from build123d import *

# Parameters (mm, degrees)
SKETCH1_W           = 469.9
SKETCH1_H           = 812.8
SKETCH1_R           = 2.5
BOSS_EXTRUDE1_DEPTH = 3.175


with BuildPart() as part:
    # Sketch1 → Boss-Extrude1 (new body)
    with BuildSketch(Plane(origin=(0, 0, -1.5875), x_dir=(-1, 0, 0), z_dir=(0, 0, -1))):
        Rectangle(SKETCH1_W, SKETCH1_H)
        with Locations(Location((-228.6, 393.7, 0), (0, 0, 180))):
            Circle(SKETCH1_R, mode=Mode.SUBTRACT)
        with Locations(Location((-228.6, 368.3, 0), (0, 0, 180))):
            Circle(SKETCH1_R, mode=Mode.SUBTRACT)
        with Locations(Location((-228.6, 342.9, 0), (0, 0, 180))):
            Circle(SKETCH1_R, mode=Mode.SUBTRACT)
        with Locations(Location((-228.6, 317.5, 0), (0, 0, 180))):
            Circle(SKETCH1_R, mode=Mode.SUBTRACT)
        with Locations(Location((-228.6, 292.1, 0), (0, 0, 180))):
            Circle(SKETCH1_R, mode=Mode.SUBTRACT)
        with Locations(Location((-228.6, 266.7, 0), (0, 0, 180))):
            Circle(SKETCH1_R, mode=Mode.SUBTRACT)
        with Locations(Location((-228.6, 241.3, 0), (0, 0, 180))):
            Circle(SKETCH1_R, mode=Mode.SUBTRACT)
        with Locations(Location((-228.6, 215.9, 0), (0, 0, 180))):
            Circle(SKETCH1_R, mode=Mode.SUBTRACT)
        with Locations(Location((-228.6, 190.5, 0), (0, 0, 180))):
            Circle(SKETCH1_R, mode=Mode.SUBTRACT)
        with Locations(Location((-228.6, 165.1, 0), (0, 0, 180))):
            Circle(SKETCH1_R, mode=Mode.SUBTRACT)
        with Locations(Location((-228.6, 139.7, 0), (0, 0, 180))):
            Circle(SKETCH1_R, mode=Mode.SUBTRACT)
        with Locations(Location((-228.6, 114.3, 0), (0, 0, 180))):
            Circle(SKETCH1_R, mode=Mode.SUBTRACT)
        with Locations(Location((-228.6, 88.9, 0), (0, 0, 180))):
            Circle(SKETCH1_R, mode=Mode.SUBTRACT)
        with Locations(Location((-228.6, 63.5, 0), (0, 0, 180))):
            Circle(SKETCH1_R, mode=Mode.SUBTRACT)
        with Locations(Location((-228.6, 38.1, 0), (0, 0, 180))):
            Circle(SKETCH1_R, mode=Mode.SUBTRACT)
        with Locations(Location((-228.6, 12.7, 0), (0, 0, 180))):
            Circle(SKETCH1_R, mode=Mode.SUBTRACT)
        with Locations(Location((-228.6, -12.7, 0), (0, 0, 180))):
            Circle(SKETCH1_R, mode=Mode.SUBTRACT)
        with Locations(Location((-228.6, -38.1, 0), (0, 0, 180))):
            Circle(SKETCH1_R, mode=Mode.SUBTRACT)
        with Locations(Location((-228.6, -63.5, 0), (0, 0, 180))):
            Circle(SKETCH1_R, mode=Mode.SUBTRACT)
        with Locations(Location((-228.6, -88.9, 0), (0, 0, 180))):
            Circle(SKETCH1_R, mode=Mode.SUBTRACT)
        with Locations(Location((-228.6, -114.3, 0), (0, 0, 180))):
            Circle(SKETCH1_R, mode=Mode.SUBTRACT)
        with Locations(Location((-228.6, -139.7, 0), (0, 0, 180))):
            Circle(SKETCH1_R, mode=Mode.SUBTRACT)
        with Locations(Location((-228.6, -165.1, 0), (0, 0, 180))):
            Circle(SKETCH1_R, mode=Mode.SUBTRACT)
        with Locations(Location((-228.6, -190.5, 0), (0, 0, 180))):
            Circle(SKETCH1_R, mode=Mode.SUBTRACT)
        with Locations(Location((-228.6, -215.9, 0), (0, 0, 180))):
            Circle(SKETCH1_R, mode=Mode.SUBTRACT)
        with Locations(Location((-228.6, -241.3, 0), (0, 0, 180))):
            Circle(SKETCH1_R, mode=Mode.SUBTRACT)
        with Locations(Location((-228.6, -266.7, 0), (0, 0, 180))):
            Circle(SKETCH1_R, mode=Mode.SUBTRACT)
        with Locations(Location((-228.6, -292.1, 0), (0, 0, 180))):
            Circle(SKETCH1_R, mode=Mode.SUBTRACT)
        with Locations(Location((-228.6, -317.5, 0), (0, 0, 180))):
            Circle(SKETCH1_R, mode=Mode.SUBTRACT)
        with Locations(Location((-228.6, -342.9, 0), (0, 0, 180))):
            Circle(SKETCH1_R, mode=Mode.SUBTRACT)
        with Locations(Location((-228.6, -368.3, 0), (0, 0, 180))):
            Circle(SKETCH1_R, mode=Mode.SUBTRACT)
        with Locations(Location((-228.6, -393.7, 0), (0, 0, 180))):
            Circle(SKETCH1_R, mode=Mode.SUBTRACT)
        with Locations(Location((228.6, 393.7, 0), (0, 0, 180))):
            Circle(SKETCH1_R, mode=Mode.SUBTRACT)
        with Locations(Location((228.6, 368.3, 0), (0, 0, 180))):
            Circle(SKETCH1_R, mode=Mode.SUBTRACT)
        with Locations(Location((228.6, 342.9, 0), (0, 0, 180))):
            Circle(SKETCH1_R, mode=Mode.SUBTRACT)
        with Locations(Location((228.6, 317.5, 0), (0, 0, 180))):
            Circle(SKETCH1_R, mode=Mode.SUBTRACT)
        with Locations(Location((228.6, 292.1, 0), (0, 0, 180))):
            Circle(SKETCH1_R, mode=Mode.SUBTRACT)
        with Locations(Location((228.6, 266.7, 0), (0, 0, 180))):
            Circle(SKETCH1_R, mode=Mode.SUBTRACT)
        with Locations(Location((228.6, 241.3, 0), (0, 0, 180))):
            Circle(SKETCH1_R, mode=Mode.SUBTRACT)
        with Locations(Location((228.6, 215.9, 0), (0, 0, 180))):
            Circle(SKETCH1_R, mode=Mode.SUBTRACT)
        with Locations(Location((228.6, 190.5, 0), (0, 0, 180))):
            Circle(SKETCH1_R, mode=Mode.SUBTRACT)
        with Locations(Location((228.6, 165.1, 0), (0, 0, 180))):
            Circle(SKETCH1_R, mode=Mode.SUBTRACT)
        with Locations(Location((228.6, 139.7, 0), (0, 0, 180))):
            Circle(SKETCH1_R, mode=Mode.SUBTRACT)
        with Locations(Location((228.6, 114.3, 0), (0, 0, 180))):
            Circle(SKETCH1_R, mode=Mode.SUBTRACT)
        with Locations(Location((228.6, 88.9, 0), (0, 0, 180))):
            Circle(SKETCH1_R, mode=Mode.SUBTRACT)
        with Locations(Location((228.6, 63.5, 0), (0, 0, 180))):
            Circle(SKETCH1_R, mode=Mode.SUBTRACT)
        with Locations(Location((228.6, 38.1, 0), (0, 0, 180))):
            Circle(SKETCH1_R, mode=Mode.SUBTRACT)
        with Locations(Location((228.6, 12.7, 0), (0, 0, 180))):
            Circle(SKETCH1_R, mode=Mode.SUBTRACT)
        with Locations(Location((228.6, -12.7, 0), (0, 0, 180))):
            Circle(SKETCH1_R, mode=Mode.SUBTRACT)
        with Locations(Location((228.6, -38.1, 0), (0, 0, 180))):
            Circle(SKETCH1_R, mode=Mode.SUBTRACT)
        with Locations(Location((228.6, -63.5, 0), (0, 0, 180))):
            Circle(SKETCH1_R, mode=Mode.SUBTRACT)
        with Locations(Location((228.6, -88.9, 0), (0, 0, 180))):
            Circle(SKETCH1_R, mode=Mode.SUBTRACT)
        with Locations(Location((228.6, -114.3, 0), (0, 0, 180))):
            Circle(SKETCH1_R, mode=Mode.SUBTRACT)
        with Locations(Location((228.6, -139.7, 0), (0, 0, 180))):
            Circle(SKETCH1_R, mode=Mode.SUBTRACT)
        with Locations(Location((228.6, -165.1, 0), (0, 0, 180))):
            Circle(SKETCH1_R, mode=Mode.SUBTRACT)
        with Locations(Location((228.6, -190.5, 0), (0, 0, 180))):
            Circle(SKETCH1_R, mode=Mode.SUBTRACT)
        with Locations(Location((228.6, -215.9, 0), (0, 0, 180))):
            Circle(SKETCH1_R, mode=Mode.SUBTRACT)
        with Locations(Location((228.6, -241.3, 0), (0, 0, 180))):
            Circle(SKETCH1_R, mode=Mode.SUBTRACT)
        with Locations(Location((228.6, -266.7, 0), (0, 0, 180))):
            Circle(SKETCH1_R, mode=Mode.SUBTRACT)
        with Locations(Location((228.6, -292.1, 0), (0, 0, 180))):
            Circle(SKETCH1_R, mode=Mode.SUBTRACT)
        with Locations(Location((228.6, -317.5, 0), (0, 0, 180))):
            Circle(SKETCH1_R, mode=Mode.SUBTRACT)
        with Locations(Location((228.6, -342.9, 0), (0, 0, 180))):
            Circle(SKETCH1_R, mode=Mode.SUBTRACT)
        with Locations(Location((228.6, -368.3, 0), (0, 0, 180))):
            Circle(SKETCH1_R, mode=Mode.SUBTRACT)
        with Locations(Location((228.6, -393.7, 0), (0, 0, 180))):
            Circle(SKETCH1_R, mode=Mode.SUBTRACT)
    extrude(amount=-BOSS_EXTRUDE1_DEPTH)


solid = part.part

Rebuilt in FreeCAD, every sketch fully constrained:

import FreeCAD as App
import Part
import Sketcher
Q = App.Units.Quantity


def add_polygon(sketch, points):
    """Adds a closed chain of lines whose ends are joined by coincident constraints."""
    first, n = sketch.GeometryCount, len(points)
    for a, b in zip(points, points[1:] + points[:1]):
        sketch.addGeometry(Part.LineSegment(App.Vector(*a, 0), App.Vector(*b, 0)), False)
    for i in range(n):
        sketch.addConstraint(Sketcher.Constraint("Coincident", first + i, 2, first + (i + 1) % n, 1))

doc = App.newDocument("Part")
body = doc.addObject("PartDesign::Body", "Body")

sketch1 = body.newObject("Sketcher::SketchObject", "Sketch")
sketch1.AttachmentSupport = (doc.getObject("XY_Plane"), [""])
sketch1.MapMode = "FlatFace"
sketch1.AttachmentOffset = App.Placement(App.Vector(0, 0, -0.0625 * 25.4), App.Rotation())
add_polygon(sketch1, [(234.9, 406.4), (234.9, -406.4), (-234.9, -406.4), (-234.9, 406.4)])
sketch1.addGeometry(Part.Circle(App.Vector(228.6, -393.7, 0), App.Vector(0, 0, 1), 2.5), False)
sketch1.addGeometry(Part.Circle(App.Vector(228.6, -368.3, 0), App.Vector(0, 0, 1), 2.5), False)
sketch1.addGeometry(Part.Circle(App.Vector(228.6, -342.9, 0), App.Vector(0, 0, 1), 2.5), False)
sketch1.addGeometry(Part.Circle(App.Vector(228.6, -317.5, 0), App.Vector(0, 0, 1), 2.5), False)
sketch1.addGeometry(Part.Circle(App.Vector(228.6, -292.1, 0), App.Vector(0, 0, 1), 2.5), False)
sketch1.addGeometry(Part.Circle(App.Vector(228.6, -266.7, 0), App.Vector(0, 0, 1), 2.5), False)
sketch1.addGeometry(Part.Circle(App.Vector(228.6, -241.3, 0), App.Vector(0, 0, 1), 2.5), False)
sketch1.addGeometry(Part.Circle(App.Vector(228.6, -215.9, 0), App.Vector(0, 0, 1), 2.5), False)
sketch1.addGeometry(Part.Circle(App.Vector(228.6, -190.5, 0), App.Vector(0, 0, 1), 2.5), False)
sketch1.addGeometry(Part.Circle(App.Vector(228.6, -165.1, 0), App.Vector(0, 0, 1), 2.5), False)
sketch1.addGeometry(Part.Circle(App.Vector(228.6, -139.7, 0), App.Vector(0, 0, 1), 2.5), False)
sketch1.addGeometry(Part.Circle(App.Vector(228.6, -114.3, 0), App.Vector(0, 0, 1), 2.5), False)
sketch1.addGeometry(Part.Circle(App.Vector(228.6, -88.9, 0), App.Vector(0, 0, 1), 2.5), False)
sketch1.addGeometry(Part.Circle(App.Vector(228.6, -63.5, 0), App.Vector(0, 0, 1), 2.5), False)
sketch1.addGeometry(Part.Circle(App.Vector(228.6, -38.1, 0), App.Vector(0, 0, 1), 2.5), False)
sketch1.addGeometry(Part.Circle(App.Vector(228.6, -12.7, 0), App.Vector(0, 0, 1), 2.5), False)
sketch1.addGeometry(Part.Circle(App.Vector(-228.6, -393.7, 0), App.Vector(0, 0, 1), 2.5), False)
sketch1.addGeometry(Part.Circle(App.Vector(-228.6, -368.3, 0), App.Vector(0, 0, 1), 2.5), False)
sketch1.addGeometry(Part.Circle(App.Vector(-228.6, -342.9, 0), App.Vector(0, 0, 1), 2.5), False)
sketch1.addGeometry(Part.Circle(App.Vector(-228.6, -317.5, 0), App.Vector(0, 0, 1), 2.5), False)
sketch1.addGeometry(Part.Circle(App.Vector(-228.6, -292.1, 0), App.Vector(0, 0, 1), 2.5), False)
sketch1.addGeometry(Part.Circle(App.Vector(-228.6, -266.7, 0), App.Vector(0, 0, 1), 2.5), False)
sketch1.addGeometry(Part.Circle(App.Vector(-228.6, -241.3, 0), App.Vector(0, 0, 1), 2.5), False)
sketch1.addGeometry(Part.Circle(App.Vector(-228.6, -215.9, 0), App.Vector(0, 0, 1), 2.5), False)
sketch1.addGeometry(Part.Circle(App.Vector(-228.6, -190.5, 0), App.Vector(0, 0, 1), 2.5), False)
sketch1.addGeometry(Part.Circle(App.Vector(-228.6, -165.1, 0), App.Vector(0, 0, 1), 2.5), False)
sketch1.addGeometry(Part.Circle(App.Vector(-228.6, -139.7, 0), App.Vector(0, 0, 1), 2.5), False)
sketch1.addGeometry(Part.Circle(App.Vector(-228.6, -114.3, 0), App.Vector(0, 0, 1), 2.5), False)
sketch1.addGeometry(Part.Circle(App.Vector(-228.6, -88.9, 0), App.Vector(0, 0, 1), 2.5), False)
sketch1.addGeometry(Part.Circle(App.Vector(-228.6, -63.5, 0), App.Vector(0, 0, 1), 2.5), False)
sketch1.addGeometry(Part.Circle(App.Vector(-228.6, -38.1, 0), App.Vector(0, 0, 1), 2.5), False)
sketch1.addGeometry(Part.Circle(App.Vector(-228.6, -12.7, 0), App.Vector(0, 0, 1), 2.5), False)
sketch1.addGeometry(Part.Circle(App.Vector(228.6, 12.7, 0), App.Vector(0, 0, 1), 2.5), False)
sketch1.addGeometry(Part.Circle(App.Vector(228.6, 38.1, 0), App.Vector(0, 0, 1), 2.5), False)
sketch1.addGeometry(Part.Circle(App.Vector(228.6, 63.5, 0), App.Vector(0, 0, 1), 2.5), False)
sketch1.addGeometry(Part.Circle(App.Vector(228.6, 88.9, 0), App.Vector(0, 0, 1), 2.5), False)
sketch1.addGeometry(Part.Circle(App.Vector(228.6, 114.3, 0), App.Vector(0, 0, 1), 2.5), False)
sketch1.addGeometry(Part.Circle(App.Vector(228.6, 139.7, 0), App.Vector(0, 0, 1), 2.5), False)
sketch1.addGeometry(Part.Circle(App.Vector(228.6, 165.1, 0), App.Vector(0, 0, 1), 2.5), False)
sketch1.addGeometry(Part.Circle(App.Vector(228.6, 190.5, 0), App.Vector(0, 0, 1), 2.5), False)
sketch1.addGeometry(Part.Circle(App.Vector(228.6, 215.9, 0), App.Vector(0, 0, 1), 2.5), False)
sketch1.addGeometry(Part.Circle(App.Vector(228.6, 241.3, 0), App.Vector(0, 0, 1), 2.5), False)
sketch1.addGeometry(Part.Circle(App.Vector(228.6, 266.7, 0), App.Vector(0, 0, 1), 2.5), False)
sketch1.addGeometry(Part.Circle(App.Vector(228.6, 292.1, 0), App.Vector(0, 0, 1), 2.5), False)
sketch1.addGeometry(Part.Circle(App.Vector(228.6, 317.5, 0), App.Vector(0, 0, 1), 2.5), False)
sketch1.addGeometry(Part.Circle(App.Vector(228.6, 342.9, 0), App.Vector(0, 0, 1), 2.5), False)
sketch1.addGeometry(Part.Circle(App.Vector(228.6, 368.3, 0), App.Vector(0, 0, 1), 2.5), False)
sketch1.addGeometry(Part.Circle(App.Vector(228.6, 393.7, 0), App.Vector(0, 0, 1), 2.5), False)
sketch1.addGeometry(Part.Circle(App.Vector(-228.6, 12.7, 0), App.Vector(0, 0, 1), 2.5), False)
sketch1.addGeometry(Part.Circle(App.Vector(-228.6, 38.1, 0), App.Vector(0, 0, 1), 2.5), False)
sketch1.addGeometry(Part.Circle(App.Vector(-228.6, 63.5, 0), App.Vector(0, 0, 1), 2.5), False)
sketch1.addGeometry(Part.Circle(App.Vector(-228.6, 88.9, 0), App.Vector(0, 0, 1), 2.5), False)
sketch1.addGeometry(Part.Circle(App.Vector(-228.6, 114.3, 0), App.Vector(0, 0, 1), 2.5), False)
sketch1.addGeometry(Part.Circle(App.Vector(-228.6, 139.7, 0), App.Vector(0, 0, 1), 2.5), False)
sketch1.addGeometry(Part.Circle(App.Vector(-228.6, 165.1, 0), App.Vector(0, 0, 1), 2.5), False)
sketch1.addGeometry(Part.Circle(App.Vector(-228.6, 190.5, 0), App.Vector(0, 0, 1), 2.5), False)
sketch1.addGeometry(Part.Circle(App.Vector(-228.6, 215.9, 0), App.Vector(0, 0, 1), 2.5), False)
sketch1.addGeometry(Part.Circle(App.Vector(-228.6, 241.3, 0), App.Vector(0, 0, 1), 2.5), False)
sketch1.addGeometry(Part.Circle(App.Vector(-228.6, 266.7, 0), App.Vector(0, 0, 1), 2.5), False)
sketch1.addGeometry(Part.Circle(App.Vector(-228.6, 292.1, 0), App.Vector(0, 0, 1), 2.5), False)
sketch1.addGeometry(Part.Circle(App.Vector(-228.6, 317.5, 0), App.Vector(0, 0, 1), 2.5), False)
sketch1.addGeometry(Part.Circle(App.Vector(-228.6, 342.9, 0), App.Vector(0, 0, 1), 2.5), False)
sketch1.addGeometry(Part.Circle(App.Vector(-228.6, 368.3, 0), App.Vector(0, 0, 1), 2.5), False)
sketch1.addGeometry(Part.Circle(App.Vector(-228.6, 393.7, 0), App.Vector(0, 0, 1), 2.5), False)
sketch1.addConstraint([
    Sketcher.Constraint("Vertical", 0),
    Sketcher.Constraint("Horizontal", 1),
    Sketcher.Constraint("Vertical", 2),
    Sketcher.Constraint("Horizontal", 3),
    Sketcher.Constraint("Equal", 4, 5),
    Sketcher.Constraint("Equal", 5, 6),
    Sketcher.Constraint("Equal", 6, 7),
    Sketcher.Constraint("Equal", 7, 8),
    Sketcher.Constraint("Equal", 8, 9),
    Sketcher.Constraint("Equal", 9, 10),
    Sketcher.Constraint("Equal", 10, 11),
    Sketcher.Constraint("Equal", 11, 12),
    Sketcher.Constraint("Equal", 12, 13),
    Sketcher.Constraint("Equal", 13, 14),
    Sketcher.Constraint("Equal", 14, 15),
    Sketcher.Constraint("Equal", 15, 16),
    Sketcher.Constraint("Equal", 16, 17),
    Sketcher.Constraint("Equal", 17, 18),
    Sketcher.Constraint("Equal", 18, 19),
    Sketcher.Constraint("Equal", 19, 20),
    Sketcher.Constraint("Equal", 20, 21),
    Sketcher.Constraint("Equal", 21, 22),
    Sketcher.Constraint("Equal", 22, 23),
    Sketcher.Constraint("Equal", 23, 24),
    Sketcher.Constraint("Equal", 24, 25),
    Sketcher.Constraint("Equal", 25, 26),
    Sketcher.Constraint("Equal", 26, 27),
    Sketcher.Constraint("Equal", 27, 28),
    Sketcher.Constraint("Equal", 28, 29),
    Sketcher.Constraint("Equal", 29, 30),
    Sketcher.Constraint("Equal", 30, 31),
    Sketcher.Constraint("Equal", 31, 32),
    Sketcher.Constraint("Equal", 32, 33),
    Sketcher.Constraint("Equal", 33, 34),
    Sketcher.Constraint("Equal", 34, 35),
    Sketcher.Constraint("Equal", 35, 36),
    Sketcher.Constraint("Equal", 36, 37),
    Sketcher.Constraint("Equal", 37, 38),
    Sketcher.Constraint("Equal", 38, 39),
    Sketcher.Constraint("Equal", 39, 40),
    Sketcher.Constraint("Equal", 40, 41),
    Sketcher.Constraint("Equal", 41, 42),
    Sketcher.Constraint("Equal", 42, 43),
    Sketcher.Constraint("Equal", 43, 44),
    Sketcher.Constraint("Equal", 44, 45),
    Sketcher.Constraint("Equal", 45, 46),
    Sketcher.Constraint("Equal", 46, 47),
    Sketcher.Constraint("Equal", 47, 48),
    Sketcher.Constraint("Equal", 48, 49),
    Sketcher.Constraint("Equal", 49, 50),
    Sketcher.Constraint("Equal", 50, 51),
    Sketcher.Constraint("Equal", 51, 52),
    Sketcher.Constraint("Equal", 52, 53),
    Sketcher.Constraint("Equal", 53, 54),
    Sketcher.Constraint("Equal", 54, 55),
    Sketcher.Constraint("Equal", 55, 56),
    Sketcher.Constraint("Equal", 56, 57),
    Sketcher.Constraint("Equal", 57, 58),
    Sketcher.Constraint("Equal", 58, 59),
    Sketcher.Constraint("Equal", 59, 60),
    Sketcher.Constraint("Equal", 60, 61),
    Sketcher.Constraint("Equal", 61, 62),
    Sketcher.Constraint("Equal", 62, 63),
    Sketcher.Constraint("Equal", 63, 64),
    Sketcher.Constraint("Equal", 64, 65),
    Sketcher.Constraint("Equal", 65, 66),
    Sketcher.Constraint("Equal", 66, 67),
    Sketcher.Constraint("Symmetric", 35, 3, 36, 3, -1, 1),
    Sketcher.Constraint("Symmetric", 34, 3, 37, 3, -1, 1),
    Sketcher.Constraint("Symmetric", 33, 3, 38, 3, -1, 1),
    Sketcher.Constraint("Symmetric", 32, 3, 39, 3, -1, 1),
    Sketcher.Constraint("Symmetric", 31, 3, 40, 3, -1, 1),
    Sketcher.Constraint("Symmetric", 30, 3, 41, 3, -1, 1),
    Sketcher.Constraint("Symmetric", 29, 3, 42, 3, -1, 1),
    Sketcher.Constraint("Symmetric", 28, 3, 43, 3, -1, 1),
    Sketcher.Constraint("Symmetric", 27, 3, 44, 3, -1, 1),
    Sketcher.Constraint("Symmetric", 26, 3, 45, 3, -1, 1),
    Sketcher.Constraint("Symmetric", 25, 3, 46, 3, -1, 1),
    Sketcher.Constraint("Symmetric", 24, 3, 47, 3, -1, 1),
    Sketcher.Constraint("Symmetric", 23, 3, 48, 3, -1, 1),
    Sketcher.Constraint("Symmetric", 22, 3, 49, 3, -1, 1),
    Sketcher.Constraint("Symmetric", 21, 3, 50, 3, -1, 1),
    Sketcher.Constraint("Symmetric", 20, 3, 51, 3, -1, 1),
    Sketcher.Constraint("Symmetric", 19, 3, 52, 3, -1, 1),
    Sketcher.Constraint("Symmetric", 18, 3, 53, 3, -1, 1),
    Sketcher.Constraint("Symmetric", 17, 3, 54, 3, -1, 1),
    Sketcher.Constraint("Symmetric", 16, 3, 55, 3, -1, 1),
    Sketcher.Constraint("Symmetric", 15, 3, 56, 3, -1, 1),
    Sketcher.Constraint("Symmetric", 14, 3, 57, 3, -1, 1),
    Sketcher.Constraint("Symmetric", 13, 3, 58, 3, -1, 1),
    Sketcher.Constraint("Symmetric", 12, 3, 59, 3, -1, 1),
    Sketcher.Constraint("Symmetric", 11, 3, 60, 3, -1, 1),
    Sketcher.Constraint("Symmetric", 10, 3, 61, 3, -1, 1),
    Sketcher.Constraint("Symmetric", 9, 3, 62, 3, -1, 1),
    Sketcher.Constraint("Symmetric", 8, 3, 63, 3, -1, 1),
    Sketcher.Constraint("Symmetric", 7, 3, 64, 3, -1, 1),
    Sketcher.Constraint("Symmetric", 6, 3, 65, 3, -1, 1),
    Sketcher.Constraint("Symmetric", 5, 3, 66, 3, -1, 1),
    Sketcher.Constraint("Symmetric", 4, 3, 67, 3, -1, 1),
    Sketcher.Constraint("Symmetric", 0, 2, 2, 2, -1, 1),
    Sketcher.Constraint("Symmetric", 4, 3, 20, 3, -2),
    Sketcher.Constraint("Symmetric", 5, 3, 21, 3, -2),
    Sketcher.Constraint("Symmetric", 6, 3, 22, 3, -2),
    Sketcher.Constraint("Symmetric", 7, 3, 23, 3, -2),
    Sketcher.Constraint("Symmetric", 8, 3, 24, 3, -2),
    Sketcher.Constraint("Symmetric", 9, 3, 25, 3, -2),
    Sketcher.Constraint("Symmetric", 10, 3, 26, 3, -2),
    Sketcher.Constraint("Symmetric", 11, 3, 27, 3, -2),
    Sketcher.Constraint("Symmetric", 12, 3, 28, 3, -2),
    Sketcher.Constraint("Symmetric", 13, 3, 29, 3, -2),
    Sketcher.Constraint("Symmetric", 14, 3, 30, 3, -2),
    Sketcher.Constraint("Symmetric", 15, 3, 31, 3, -2),
    Sketcher.Constraint("Symmetric", 16, 3, 32, 3, -2),
    Sketcher.Constraint("Symmetric", 17, 3, 33, 3, -2),
    Sketcher.Constraint("Symmetric", 18, 3, 34, 3, -2),
    Sketcher.Constraint("Symmetric", 19, 3, 35, 3, -2),
    Sketcher.Constraint("Vertical", 4, 3, 5, 3),
    Sketcher.Constraint("Vertical", 5, 3, 6, 3),
    Sketcher.Constraint("Vertical", 6, 3, 7, 3),
    Sketcher.Constraint("Vertical", 7, 3, 8, 3),
    Sketcher.Constraint("Vertical", 8, 3, 9, 3),
    Sketcher.Constraint("Vertical", 9, 3, 10, 3),
    Sketcher.Constraint("Vertical", 10, 3, 11, 3),
    Sketcher.Constraint("Vertical", 11, 3, 12, 3),
    Sketcher.Constraint("Vertical", 12, 3, 13, 3),
    Sketcher.Constraint("Vertical", 13, 3, 14, 3),
    Sketcher.Constraint("Vertical", 14, 3, 15, 3),
    Sketcher.Constraint("Vertical", 15, 3, 16, 3),
    Sketcher.Constraint("Vertical", 16, 3, 17, 3),
    Sketcher.Constraint("Vertical", 17, 3, 18, 3),
    Sketcher.Constraint("Vertical", 18, 3, 19, 3),
    Sketcher.Constraint("DistanceY", 0, 2, 0, 1, Q("32 in")),
    Sketcher.Constraint("DistanceX", 1, 2, 1, 1, Q("18.5 in")),
    Sketcher.Constraint("DistanceX", -1, 1, 4, 3, Q("9 in")),
    Sketcher.Constraint("DistanceY", 4, 3, -1, 1, Q("15.5 in")),
    Sketcher.Constraint("DistanceY", 5, 3, -1, 1, Q("14.5 in")),
    Sketcher.Constraint("DistanceY", 6, 3, -1, 1, Q("13.5 in")),
    Sketcher.Constraint("DistanceY", 7, 3, -1, 1, Q("12.5 in")),
    Sketcher.Constraint("DistanceY", 8, 3, -1, 1, Q("11.5 in")),
    Sketcher.Constraint("DistanceY", 9, 3, -1, 1, Q("10.5 in")),
    Sketcher.Constraint("DistanceY", 10, 3, -1, 1, Q("9.5 in")),
    Sketcher.Constraint("DistanceY", 11, 3, -1, 1, Q("8.5 in")),
    Sketcher.Constraint("DistanceY", 12, 3, -1, 1, Q("7.5 in")),
    Sketcher.Constraint("DistanceY", 13, 3, -1, 1, Q("6.5 in")),
    Sketcher.Constraint("DistanceY", 14, 3, -1, 1, Q("5.5 in")),
    Sketcher.Constraint("DistanceY", 15, 3, -1, 1, Q("4.5 in")),
    Sketcher.Constraint("DistanceY", 16, 3, -1, 1, Q("3.5 in")),
    Sketcher.Constraint("DistanceY", 17, 3, -1, 1, Q("2.5 in")),
    Sketcher.Constraint("DistanceY", 18, 3, -1, 1, Q("1.5 in")),
    Sketcher.Constraint("DistanceY", 19, 3, -1, 1, Q("0.5 in")),
    Sketcher.Constraint("Diameter", 4, Q("5 mm")),
])
pad1 = body.newObject("PartDesign::Pad", "Pad")
pad1.Profile = sketch1
pad1.Length = Q("0.125 in")

doc.recompute()
